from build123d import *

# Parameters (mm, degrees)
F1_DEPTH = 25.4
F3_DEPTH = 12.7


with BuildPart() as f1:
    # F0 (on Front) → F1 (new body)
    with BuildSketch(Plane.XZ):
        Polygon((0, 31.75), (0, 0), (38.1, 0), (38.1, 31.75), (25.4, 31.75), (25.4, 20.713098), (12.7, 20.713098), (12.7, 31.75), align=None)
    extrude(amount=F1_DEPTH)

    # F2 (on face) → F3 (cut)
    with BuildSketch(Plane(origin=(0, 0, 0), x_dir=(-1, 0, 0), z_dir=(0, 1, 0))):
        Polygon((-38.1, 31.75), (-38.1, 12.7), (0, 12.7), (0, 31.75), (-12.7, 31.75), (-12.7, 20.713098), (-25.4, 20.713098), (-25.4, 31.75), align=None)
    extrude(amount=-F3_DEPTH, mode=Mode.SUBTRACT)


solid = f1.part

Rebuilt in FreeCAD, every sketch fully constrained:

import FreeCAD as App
import Part
import Sketcher

V = App.Vector
Q = App.Units.Quantity

doc = App.newDocument("Part")
body = doc.addObject("PartDesign::Body", "Body")

sketch1 = body.newObject("Sketcher::SketchObject", "Sketch")
sketch1.AttachmentSupport = (doc.getObject("XZ_Plane"), [""])
sketch1.MapMode = "FlatFace"
sketch1.addGeometry([
    Part.LineSegment(V(0, 32, 0), V(0, 0, 0)),
    Part.LineSegment(V(0, 0, 0), V(38, 0, 0)),
    Part.LineSegment(V(38, 0, 0), V(38, 32, 0)),
    Part.LineSegment(V(38, 32, 0), V(25, 32, 0)),
    Part.LineSegment(V(25, 32, 0), V(25, 21, 0)),
    Part.LineSegment(V(25, 21, 0), V(13, 21, 0)),
    Part.LineSegment(V(13, 21, 0), V(13, 32, 0)),
    Part.LineSegment(V(13, 32, 0), V(0, 32, 0)),
], False)
sketch1.addConstraint([
    Sketcher.Constraint("Coincident", 0, 2, 1, 1),
    Sketcher.Constraint("Coincident", 1, 2, 2, 1),
    Sketcher.Constraint("Coincident", 2, 2, 3, 1),
    Sketcher.Constraint("Coincident", 3, 2, 4, 1),
    Sketcher.Constraint("Coincident", 4, 2, 5, 1),
    Sketcher.Constraint("Coincident", 5, 2, 6, 1),
    Sketcher.Constraint("Coincident", 6, 2, 7, 1),
    Sketcher.Constraint("Coincident", 7, 2, 0, 1),
    Sketcher.Constraint("Vertical", 0),
    Sketcher.Constraint("Horizontal", 1),
    Sketcher.Constraint("Vertical", 2),
    Sketcher.Constraint("Horizontal", 3),
    Sketcher.Constraint("Vertical", 4),
    Sketcher.Constraint("Horizontal", 5),
    Sketcher.Constraint("Vertical", 6),
    Sketcher.Constraint("Horizontal", 7),
    Sketcher.Constraint("Coincident", 0, 2, -1, 1),
    Sketcher.Constraint("Horizontal", 3, 2, 6, 2),
    Sketcher.Constraint("Equal", 3, 5),
    Sketcher.Constraint("Equal", 5, 7),
    Sketcher.Constraint("DistanceX", 1, 1, 1, 2, Q("1.5 in")),
    Sketcher.Constraint("DistanceY", 0, 2, 0, 1, Q("1.25 in")),
    Sketcher.Constraint("DistanceY", 4, 2, 4, 1, Q("11.036902 mm")),
])
pad1 = body.newObject("PartDesign::Pad", "Pad")
pad1.Profile = sketch1
pad1.Length = Q("1 in")

sketch2 = body.newObject("Sketcher::SketchObject", "Sketch001")
sketch2.AttachmentSupport = (doc.getObject("XZ_Plane"), [""])
sketch2.MapMode = "FlatFace"
sketch2.addGeometry([
    Part.LineSegment(V(38, 32, 0), V(38, 13, 0)),
    Part.LineSegment(V(38, 13, 0), V(0, 13, 0)),
    Part.LineSegment(V(0, 13, 0), V(0, 32, 0)),
    Part.LineSegment(V(0, 32, 0), V(13, 32, 0)),
    Part.LineSegment(V(13, 32, 0), V(13, 21, 0)),
    Part.LineSegment(V(13, 21, 0), V(25, 21, 0)),
    Part.LineSegment(V(25, 21, 0), V(25, 32, 0)),
    Part.LineSegment(V(25, 32, 0), V(38, 32, 0)),
], False)
sketch2.addConstraint([
    Sketcher.Constraint("Coincident", 0, 2, 1, 1),
    Sketcher.Constraint("Coincident", 1, 2, 2, 1),
    Sketcher.Constraint("Coincident", 2, 2, 3, 1),
    Sketcher.Constraint("Coincident", 3, 2, 4, 1),
    Sketcher.Constraint("Coincident", 4, 2, 5, 1),
    Sketcher.Constraint("Coincident", 5, 2, 6, 1),
    Sketcher.Constraint("Coincident", 6, 2, 7, 1),
    Sketcher.Constraint("Coincident", 7, 2, 0, 1),
    Sketcher.Constraint("Vertical", 0),
    Sketcher.Constraint("Horizontal", 1),
    Sketcher.Constraint("Vertical", 2),
    Sketcher.Constraint("Horizontal", 3),
    Sketcher.Constraint("Vertical", 4),
    Sketcher.Constraint("Horizontal", 5),
    Sketcher.Constraint("Vertical", 6),
    Sketcher.Constraint("Horizontal", 7),
    Sketcher.Constraint("PointOnObject", 1, 2, -2),
    Sketcher.Constraint("Horizontal", 3, 2, 6, 2),
    Sketcher.Constraint("Equal", 3, 5),
    Sketcher.Constraint("Equal", 5, 7),
    Sketcher.Constraint("DistanceX", 1, 2, 1, 1, Q("1.5 in")),
    Sketcher.Constraint("DistanceY", 0, 2, 0, 1, Q("0.75 in")),
    Sketcher.Constraint("DistanceY", -1, 1, 0, 2, Q("0.5 in")),
    Sketcher.Constraint("DistanceY", 4, 2, 4, 1, Q("11.036902 mm")),
])
pocket1 = body.newObject("PartDesign::Pocket", "Pocket")
pocket1.Profile = sketch2
pocket1.Length = Q("0.5 in")
pocket1.Reversed = True

doc.recompute()
